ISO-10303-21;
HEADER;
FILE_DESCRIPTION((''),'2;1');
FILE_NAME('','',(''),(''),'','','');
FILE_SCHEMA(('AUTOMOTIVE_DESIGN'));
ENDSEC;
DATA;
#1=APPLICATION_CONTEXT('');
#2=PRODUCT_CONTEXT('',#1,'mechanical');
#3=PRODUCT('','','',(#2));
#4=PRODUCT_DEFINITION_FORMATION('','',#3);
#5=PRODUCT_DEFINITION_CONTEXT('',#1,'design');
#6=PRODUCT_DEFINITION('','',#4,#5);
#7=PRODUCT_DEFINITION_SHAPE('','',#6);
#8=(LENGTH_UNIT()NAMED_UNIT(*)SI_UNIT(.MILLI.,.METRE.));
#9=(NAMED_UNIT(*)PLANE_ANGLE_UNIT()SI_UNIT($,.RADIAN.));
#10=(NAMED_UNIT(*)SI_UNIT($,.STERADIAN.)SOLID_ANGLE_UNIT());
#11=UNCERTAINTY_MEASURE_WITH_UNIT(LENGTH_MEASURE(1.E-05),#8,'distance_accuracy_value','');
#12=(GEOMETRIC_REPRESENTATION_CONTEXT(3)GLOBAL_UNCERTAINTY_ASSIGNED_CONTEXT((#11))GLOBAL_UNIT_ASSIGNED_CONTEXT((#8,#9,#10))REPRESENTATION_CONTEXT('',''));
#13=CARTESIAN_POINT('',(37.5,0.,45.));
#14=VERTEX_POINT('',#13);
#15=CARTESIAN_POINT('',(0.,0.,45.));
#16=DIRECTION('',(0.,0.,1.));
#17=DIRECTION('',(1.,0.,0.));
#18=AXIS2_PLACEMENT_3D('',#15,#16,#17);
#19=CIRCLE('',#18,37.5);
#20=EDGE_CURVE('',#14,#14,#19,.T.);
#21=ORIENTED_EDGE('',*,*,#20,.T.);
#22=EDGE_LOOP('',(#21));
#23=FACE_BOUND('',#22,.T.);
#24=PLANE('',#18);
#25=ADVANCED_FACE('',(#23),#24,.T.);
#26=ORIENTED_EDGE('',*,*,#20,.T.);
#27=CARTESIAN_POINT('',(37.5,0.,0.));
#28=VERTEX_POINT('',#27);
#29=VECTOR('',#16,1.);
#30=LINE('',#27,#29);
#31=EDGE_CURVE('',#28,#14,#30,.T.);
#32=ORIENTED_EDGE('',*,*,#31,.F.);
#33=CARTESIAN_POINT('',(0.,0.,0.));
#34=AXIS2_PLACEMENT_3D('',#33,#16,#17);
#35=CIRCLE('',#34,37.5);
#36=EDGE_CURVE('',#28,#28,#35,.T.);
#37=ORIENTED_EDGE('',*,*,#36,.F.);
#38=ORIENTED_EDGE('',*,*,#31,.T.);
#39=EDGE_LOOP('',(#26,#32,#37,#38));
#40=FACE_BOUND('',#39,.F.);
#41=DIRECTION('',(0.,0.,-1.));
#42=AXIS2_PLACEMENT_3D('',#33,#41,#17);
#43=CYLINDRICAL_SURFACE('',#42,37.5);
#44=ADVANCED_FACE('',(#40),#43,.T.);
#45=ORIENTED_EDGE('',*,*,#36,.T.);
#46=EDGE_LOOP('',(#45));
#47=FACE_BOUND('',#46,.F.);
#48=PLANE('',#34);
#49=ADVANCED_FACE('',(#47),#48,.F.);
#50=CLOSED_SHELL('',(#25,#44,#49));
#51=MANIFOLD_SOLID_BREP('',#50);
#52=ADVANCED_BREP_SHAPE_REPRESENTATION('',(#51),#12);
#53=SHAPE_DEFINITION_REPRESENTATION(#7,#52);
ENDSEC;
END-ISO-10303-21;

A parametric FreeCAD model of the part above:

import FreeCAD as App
import Part
import Sketcher

doc = App.newDocument("Part")
body = doc.addObject("PartDesign::Body", "Body")

sketch1 = body.newObject("Sketcher::SketchObject", "Sketch")
sketch1.AttachmentSupport = (doc.getObject("XY_Plane"), [""])
sketch1.MapMode = "FlatFace"
sketch1.addGeometry(Part.Circle(App.Vector(0, 0, 0), App.Vector(0, 0, 1), 38), False)
sketch1.addConstraint([
    Sketcher.Constraint("Coincident", 0, 3, -1, 1),
    Sketcher.Constraint("Diameter", 0, 75.0),
])
pad1 = body.newObject("PartDesign::Pad", "Pad")
pad1.Profile = sketch1
pad1.Length = 45

doc.recompute()
